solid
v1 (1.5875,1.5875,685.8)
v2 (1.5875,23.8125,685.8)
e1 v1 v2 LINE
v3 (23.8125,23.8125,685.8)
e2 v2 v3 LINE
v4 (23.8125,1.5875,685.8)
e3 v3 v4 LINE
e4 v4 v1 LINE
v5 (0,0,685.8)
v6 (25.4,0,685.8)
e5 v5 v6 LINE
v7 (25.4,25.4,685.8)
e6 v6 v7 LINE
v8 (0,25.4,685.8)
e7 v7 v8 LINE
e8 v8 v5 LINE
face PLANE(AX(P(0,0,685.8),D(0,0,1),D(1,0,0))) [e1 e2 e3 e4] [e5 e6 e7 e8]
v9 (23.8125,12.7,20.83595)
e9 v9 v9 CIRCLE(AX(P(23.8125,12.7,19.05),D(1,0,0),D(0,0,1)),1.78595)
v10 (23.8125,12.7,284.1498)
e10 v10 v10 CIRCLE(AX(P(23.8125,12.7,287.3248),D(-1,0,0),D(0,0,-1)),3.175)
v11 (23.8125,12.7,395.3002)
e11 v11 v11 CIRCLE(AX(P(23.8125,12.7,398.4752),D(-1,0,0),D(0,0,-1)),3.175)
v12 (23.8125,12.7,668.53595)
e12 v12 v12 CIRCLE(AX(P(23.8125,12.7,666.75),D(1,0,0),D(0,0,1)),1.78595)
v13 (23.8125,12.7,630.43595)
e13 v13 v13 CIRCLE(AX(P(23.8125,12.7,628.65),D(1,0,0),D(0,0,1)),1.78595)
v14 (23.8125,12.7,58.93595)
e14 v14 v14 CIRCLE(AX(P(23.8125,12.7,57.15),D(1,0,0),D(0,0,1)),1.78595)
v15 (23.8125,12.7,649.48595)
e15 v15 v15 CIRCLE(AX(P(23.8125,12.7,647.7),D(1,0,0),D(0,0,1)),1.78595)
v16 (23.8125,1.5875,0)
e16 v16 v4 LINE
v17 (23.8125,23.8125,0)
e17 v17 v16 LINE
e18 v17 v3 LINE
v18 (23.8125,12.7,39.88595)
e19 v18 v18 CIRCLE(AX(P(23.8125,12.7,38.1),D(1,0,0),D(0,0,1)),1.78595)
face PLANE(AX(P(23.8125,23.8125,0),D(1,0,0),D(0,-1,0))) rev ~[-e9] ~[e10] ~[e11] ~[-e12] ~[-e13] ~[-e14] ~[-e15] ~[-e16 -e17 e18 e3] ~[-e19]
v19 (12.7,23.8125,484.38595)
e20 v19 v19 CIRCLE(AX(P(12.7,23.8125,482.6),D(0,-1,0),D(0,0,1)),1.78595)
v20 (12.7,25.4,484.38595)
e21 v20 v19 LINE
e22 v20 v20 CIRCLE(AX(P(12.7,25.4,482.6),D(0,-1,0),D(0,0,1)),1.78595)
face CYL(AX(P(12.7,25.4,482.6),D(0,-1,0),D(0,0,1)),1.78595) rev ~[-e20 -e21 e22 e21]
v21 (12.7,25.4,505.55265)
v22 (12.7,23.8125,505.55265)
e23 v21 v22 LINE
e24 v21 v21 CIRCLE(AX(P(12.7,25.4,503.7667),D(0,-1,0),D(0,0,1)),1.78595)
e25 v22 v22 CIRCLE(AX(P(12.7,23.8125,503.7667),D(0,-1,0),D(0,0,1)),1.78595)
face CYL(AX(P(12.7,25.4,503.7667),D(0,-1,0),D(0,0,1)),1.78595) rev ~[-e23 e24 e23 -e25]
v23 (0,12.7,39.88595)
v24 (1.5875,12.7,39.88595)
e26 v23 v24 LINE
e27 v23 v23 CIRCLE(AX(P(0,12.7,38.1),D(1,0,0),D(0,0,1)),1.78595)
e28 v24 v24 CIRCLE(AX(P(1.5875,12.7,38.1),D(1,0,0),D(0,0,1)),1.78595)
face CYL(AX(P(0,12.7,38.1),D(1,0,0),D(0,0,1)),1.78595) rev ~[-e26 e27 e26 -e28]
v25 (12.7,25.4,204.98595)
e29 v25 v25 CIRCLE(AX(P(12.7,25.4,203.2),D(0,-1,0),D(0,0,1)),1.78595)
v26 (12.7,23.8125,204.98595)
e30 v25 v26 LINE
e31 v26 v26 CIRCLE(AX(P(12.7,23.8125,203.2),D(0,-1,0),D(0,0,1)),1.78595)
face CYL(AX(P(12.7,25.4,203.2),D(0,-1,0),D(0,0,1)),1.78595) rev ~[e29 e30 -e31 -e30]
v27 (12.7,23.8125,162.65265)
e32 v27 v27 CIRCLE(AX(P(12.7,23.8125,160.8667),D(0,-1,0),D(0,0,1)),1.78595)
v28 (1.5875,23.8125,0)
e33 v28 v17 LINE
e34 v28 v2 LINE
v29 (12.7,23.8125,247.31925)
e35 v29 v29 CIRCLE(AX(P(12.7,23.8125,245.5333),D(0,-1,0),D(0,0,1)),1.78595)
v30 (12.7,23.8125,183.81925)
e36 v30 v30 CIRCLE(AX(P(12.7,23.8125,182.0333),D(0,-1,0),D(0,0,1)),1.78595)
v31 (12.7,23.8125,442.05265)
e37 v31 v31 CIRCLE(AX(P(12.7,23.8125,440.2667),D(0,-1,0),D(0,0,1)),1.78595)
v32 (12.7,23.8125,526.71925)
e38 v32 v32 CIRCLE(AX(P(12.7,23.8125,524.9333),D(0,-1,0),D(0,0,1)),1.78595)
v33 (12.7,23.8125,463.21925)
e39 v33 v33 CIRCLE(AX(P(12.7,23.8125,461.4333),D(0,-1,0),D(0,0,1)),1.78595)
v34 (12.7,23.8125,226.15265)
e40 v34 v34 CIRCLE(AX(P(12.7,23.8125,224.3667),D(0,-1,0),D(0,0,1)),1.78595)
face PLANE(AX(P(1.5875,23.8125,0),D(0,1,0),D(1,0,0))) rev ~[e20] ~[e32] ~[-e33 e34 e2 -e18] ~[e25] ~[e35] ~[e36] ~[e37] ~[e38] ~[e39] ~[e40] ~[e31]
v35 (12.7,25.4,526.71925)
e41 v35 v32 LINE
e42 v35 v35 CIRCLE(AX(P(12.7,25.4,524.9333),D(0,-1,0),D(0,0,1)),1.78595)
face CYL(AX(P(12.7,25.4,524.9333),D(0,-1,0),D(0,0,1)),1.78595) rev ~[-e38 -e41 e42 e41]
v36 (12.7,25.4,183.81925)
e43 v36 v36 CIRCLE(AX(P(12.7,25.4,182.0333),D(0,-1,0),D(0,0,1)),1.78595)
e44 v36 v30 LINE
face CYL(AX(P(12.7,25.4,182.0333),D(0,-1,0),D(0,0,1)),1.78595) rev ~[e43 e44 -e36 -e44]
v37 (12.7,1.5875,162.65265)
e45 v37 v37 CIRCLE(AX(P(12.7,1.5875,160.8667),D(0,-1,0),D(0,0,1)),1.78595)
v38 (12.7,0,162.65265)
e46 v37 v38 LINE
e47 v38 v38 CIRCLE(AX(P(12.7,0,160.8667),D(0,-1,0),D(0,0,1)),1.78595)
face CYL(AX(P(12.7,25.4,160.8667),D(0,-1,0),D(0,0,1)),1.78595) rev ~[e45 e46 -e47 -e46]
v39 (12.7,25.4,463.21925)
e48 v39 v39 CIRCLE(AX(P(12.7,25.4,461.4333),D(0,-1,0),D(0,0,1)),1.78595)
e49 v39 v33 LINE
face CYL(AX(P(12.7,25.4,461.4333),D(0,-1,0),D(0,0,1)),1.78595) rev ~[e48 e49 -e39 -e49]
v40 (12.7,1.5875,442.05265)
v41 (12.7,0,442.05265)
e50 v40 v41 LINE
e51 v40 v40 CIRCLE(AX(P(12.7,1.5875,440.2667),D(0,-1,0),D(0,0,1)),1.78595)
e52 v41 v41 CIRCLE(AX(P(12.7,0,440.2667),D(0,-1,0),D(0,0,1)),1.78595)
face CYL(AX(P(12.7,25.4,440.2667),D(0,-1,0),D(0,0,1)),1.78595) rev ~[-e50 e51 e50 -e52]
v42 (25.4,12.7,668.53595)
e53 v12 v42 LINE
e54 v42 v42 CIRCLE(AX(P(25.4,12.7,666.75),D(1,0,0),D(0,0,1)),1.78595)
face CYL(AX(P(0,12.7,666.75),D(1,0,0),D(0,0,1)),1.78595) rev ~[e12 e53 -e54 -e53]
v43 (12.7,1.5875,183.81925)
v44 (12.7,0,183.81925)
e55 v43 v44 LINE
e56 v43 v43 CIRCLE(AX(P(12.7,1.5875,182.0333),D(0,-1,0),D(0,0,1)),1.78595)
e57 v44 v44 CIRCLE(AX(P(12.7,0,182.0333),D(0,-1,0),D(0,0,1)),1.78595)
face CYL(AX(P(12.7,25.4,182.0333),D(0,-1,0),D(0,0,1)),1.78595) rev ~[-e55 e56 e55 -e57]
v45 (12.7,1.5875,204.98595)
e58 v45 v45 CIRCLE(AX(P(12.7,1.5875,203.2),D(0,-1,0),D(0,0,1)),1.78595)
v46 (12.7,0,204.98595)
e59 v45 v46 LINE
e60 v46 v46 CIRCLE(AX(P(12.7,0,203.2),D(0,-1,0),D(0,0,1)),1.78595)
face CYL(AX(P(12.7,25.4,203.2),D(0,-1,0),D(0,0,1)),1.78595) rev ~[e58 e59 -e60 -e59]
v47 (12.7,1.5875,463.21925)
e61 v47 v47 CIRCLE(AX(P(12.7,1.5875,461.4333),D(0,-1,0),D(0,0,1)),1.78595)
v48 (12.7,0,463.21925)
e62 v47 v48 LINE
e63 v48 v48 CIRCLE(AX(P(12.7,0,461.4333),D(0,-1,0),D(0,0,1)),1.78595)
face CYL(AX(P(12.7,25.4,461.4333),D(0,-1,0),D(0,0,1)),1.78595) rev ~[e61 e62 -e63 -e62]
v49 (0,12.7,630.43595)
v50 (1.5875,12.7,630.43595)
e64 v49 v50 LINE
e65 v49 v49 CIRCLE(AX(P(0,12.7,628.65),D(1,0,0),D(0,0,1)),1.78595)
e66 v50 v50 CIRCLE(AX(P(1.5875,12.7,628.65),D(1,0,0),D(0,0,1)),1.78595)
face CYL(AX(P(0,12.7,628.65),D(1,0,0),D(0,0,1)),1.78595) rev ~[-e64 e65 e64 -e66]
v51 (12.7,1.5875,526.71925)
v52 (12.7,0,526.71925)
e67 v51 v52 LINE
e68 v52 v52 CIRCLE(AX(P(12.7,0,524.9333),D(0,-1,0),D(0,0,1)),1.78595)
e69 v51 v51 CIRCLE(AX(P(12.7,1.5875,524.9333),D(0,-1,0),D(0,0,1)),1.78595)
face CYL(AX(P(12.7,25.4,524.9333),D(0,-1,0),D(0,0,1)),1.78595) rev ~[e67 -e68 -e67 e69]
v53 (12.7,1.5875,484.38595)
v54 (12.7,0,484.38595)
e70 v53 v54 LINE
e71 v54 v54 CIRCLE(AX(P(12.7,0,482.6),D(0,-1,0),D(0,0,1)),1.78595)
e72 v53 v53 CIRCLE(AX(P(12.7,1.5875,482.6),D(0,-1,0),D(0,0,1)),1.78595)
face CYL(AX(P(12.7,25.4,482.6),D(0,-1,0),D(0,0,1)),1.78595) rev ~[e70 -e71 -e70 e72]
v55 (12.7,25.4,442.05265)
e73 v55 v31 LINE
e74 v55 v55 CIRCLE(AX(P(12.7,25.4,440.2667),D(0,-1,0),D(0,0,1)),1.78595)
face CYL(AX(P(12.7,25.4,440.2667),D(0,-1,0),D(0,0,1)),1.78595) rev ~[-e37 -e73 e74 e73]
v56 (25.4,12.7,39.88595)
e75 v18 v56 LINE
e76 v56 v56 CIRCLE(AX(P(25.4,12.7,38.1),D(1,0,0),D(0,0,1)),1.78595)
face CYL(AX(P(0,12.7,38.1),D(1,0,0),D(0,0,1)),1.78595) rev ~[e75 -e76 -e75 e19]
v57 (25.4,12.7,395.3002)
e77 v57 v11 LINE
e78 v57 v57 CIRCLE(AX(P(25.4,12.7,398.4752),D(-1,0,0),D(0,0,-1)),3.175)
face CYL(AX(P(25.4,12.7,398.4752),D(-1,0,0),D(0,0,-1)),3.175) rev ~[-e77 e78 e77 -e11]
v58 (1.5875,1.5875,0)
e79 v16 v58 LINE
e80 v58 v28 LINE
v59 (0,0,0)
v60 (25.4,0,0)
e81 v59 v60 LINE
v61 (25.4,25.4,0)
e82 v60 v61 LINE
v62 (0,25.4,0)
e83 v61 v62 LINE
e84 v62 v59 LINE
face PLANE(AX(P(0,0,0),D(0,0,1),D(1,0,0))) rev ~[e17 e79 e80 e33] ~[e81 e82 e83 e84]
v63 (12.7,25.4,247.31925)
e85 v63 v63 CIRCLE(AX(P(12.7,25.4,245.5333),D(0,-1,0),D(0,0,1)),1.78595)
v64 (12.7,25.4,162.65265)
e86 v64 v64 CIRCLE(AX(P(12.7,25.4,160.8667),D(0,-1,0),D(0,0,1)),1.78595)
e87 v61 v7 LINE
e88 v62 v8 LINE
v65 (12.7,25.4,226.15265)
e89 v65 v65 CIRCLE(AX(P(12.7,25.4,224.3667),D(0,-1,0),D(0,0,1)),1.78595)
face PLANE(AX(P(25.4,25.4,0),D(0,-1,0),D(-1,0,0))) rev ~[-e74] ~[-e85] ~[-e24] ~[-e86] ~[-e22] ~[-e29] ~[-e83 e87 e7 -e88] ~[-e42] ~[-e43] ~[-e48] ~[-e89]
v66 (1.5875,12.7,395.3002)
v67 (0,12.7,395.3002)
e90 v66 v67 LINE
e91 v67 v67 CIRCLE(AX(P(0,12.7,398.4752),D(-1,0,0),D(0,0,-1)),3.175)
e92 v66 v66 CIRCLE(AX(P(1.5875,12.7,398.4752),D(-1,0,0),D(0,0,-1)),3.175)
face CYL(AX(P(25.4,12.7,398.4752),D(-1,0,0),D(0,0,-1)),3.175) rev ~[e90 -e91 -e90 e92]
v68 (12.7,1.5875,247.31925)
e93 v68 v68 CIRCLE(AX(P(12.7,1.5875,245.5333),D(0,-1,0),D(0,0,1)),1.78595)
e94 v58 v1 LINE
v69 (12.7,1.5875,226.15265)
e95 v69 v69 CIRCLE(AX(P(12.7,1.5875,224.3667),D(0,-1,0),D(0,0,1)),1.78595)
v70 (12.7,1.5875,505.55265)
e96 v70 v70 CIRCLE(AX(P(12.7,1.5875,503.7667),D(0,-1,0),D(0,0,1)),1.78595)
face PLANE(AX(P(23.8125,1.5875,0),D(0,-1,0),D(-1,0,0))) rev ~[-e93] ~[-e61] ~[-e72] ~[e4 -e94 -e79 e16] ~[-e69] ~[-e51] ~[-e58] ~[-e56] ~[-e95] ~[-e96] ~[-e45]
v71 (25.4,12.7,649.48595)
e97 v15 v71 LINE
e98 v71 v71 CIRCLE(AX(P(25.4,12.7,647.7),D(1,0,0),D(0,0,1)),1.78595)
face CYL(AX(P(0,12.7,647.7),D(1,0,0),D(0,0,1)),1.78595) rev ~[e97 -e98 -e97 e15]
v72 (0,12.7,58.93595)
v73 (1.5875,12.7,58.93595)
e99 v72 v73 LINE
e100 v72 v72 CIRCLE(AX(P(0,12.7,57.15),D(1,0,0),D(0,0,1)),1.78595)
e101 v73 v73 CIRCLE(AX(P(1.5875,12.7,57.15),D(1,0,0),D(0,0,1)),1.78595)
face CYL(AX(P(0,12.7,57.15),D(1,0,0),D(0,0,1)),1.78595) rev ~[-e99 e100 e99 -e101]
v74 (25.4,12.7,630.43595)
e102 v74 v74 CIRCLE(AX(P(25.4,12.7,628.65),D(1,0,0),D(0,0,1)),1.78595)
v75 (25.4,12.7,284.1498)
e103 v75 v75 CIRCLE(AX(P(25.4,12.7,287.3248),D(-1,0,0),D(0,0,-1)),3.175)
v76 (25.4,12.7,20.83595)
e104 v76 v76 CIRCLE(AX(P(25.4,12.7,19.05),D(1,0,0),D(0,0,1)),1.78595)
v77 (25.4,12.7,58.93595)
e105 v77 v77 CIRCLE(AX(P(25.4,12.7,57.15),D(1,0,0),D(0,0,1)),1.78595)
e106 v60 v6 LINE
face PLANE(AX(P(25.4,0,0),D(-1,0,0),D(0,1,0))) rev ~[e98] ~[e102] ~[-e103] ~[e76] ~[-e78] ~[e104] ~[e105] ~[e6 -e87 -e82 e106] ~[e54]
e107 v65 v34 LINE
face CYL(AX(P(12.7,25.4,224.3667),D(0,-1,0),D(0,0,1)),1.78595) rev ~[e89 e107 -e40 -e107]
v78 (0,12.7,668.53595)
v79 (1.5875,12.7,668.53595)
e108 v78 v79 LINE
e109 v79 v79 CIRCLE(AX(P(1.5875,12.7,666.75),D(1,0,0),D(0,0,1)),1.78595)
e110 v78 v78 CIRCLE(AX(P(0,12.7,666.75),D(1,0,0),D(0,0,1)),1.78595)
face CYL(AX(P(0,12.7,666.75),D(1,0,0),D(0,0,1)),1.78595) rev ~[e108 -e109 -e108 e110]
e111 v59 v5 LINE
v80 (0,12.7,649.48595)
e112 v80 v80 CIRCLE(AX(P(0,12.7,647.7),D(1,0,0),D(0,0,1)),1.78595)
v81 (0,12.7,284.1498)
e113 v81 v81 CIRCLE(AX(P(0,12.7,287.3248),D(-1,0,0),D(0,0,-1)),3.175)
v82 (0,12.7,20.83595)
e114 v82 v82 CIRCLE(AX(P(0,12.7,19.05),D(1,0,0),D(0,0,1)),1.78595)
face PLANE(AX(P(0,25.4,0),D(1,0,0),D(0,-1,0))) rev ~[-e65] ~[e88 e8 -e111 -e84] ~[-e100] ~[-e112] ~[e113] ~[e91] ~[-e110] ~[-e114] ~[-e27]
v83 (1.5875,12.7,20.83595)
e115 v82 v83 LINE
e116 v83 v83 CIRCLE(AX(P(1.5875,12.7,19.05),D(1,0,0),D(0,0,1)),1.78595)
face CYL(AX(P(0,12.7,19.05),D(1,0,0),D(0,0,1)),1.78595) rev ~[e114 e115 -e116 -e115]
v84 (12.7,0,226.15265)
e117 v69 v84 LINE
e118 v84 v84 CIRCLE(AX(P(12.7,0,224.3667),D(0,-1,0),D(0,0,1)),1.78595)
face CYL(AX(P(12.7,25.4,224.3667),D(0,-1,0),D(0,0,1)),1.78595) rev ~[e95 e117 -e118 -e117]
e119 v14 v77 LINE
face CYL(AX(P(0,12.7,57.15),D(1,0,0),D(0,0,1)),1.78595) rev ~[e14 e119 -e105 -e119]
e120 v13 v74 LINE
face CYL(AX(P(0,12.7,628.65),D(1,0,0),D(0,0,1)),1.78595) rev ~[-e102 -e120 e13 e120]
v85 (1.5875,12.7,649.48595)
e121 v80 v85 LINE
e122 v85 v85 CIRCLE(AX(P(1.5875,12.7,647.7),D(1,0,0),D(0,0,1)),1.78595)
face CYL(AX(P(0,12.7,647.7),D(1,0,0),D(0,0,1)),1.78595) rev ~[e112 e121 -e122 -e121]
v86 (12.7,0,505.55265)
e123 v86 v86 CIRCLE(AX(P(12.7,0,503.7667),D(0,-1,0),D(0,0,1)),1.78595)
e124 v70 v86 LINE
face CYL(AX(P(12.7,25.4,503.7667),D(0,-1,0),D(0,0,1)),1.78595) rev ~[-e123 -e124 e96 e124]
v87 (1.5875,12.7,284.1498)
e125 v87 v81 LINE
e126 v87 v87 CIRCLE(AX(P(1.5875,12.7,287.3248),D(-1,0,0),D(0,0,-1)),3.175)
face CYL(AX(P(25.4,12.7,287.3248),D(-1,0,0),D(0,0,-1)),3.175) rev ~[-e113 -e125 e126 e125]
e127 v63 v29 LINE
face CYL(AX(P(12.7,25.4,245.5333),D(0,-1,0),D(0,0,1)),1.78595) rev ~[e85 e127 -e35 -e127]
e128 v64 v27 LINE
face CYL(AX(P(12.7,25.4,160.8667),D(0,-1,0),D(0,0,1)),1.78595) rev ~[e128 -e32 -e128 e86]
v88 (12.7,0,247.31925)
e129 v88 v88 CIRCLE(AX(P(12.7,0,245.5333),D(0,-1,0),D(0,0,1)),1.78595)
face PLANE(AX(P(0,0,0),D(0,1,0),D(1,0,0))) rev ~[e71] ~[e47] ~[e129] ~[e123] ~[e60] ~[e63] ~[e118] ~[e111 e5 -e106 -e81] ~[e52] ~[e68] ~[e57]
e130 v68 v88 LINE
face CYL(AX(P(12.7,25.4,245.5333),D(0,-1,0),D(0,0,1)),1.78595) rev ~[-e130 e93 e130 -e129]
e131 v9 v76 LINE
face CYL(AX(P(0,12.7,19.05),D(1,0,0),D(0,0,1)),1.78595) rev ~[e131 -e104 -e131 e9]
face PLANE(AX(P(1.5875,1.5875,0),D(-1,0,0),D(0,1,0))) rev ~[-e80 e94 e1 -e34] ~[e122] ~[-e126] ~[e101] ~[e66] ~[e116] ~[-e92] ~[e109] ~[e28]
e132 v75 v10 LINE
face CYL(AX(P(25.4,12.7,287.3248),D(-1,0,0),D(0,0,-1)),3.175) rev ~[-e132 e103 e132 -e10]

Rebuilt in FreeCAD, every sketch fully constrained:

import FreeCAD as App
import Part
import Sketcher
from FreeCAD import Vector
Q = App.Units.Quantity


def add_polygon(sketch, points):
    """Adds a closed chain of lines whose ends are joined by coincident constraints."""
    first, n = sketch.GeometryCount, len(points)
    for a, b in zip(points, points[1:] + points[:1]):
        sketch.addGeometry(Part.LineSegment(App.Vector(*a, 0), App.Vector(*b, 0)), False)
    for i in range(n):
        sketch.addConstraint(Sketcher.Constraint("Coincident", first + i, 2, first + (i + 1) % n, 1))

doc = App.newDocument("Part")
body = doc.addObject("PartDesign::Body", "Body")

# Sketch on XY plane
sketch1 = body.newObject("Sketcher::SketchObject", "Sketch")
sketch1.AttachmentSupport = (doc.getObject("XY_Plane"), [""])
sketch1.MapMode = "FlatFace"
add_polygon(sketch1, [(0, 25), (0, 0), (25, 0), (25, 25)])  # lines 0-3
add_polygon(sketch1, [(2, 2), (2, 24), (24, 24), (24, 2)])  # lines 4-7
sketch1.addConstraint(Sketcher.Constraint("Vertical", 0))
sketch1.addConstraint(Sketcher.Constraint("Horizontal", 1))
sketch1.addConstraint(Sketcher.Constraint("Vertical", 2))
sketch1.addConstraint(Sketcher.Constraint("Horizontal", 3))
sketch1.addConstraint(Sketcher.Constraint("Vertical", 4))
sketch1.addConstraint(Sketcher.Constraint("Horizontal", 5))
sketch1.addConstraint(Sketcher.Constraint("Vertical", 6))
sketch1.addConstraint(Sketcher.Constraint("Horizontal", 7))
sketch1.addConstraint(Sketcher.Constraint("Coincident", 0, 2, -1, 1))
sketch1.addConstraint(Sketcher.Constraint("Equal", 3, 0))
sketch1.addConstraint(Sketcher.Constraint("Equal", 7, 4))
sketch1.addConstraint(Sketcher.Constraint("DistanceX", 1, 1, 1, 2, Q("1 in")))
sketch1.addConstraint(Sketcher.Constraint("DistanceX", -1, 1, 4, 2, Q("0.0625 in")))
sketch1.addConstraint(Sketcher.Constraint("DistanceY", -1, 1, 6, 2, Q("0.0625 in")))
sketch1.addConstraint(Sketcher.Constraint("DistanceY", 4, 2, 3, 2, Q("0.0625 in")))
pad1 = body.newObject("PartDesign::Pad", "Pad")
pad1.Profile = sketch1
pad1.Length = Q("27 in")

# Sketch on YZ plane
sketch2 = body.newObject("Sketcher::SketchObject", "Sketch001")
sketch2.AttachmentSupport = (doc.getObject("YZ_Plane"), [""])
sketch2.MapMode = "FlatFace"
sketch2.AttachmentOffset = App.Placement(Vector(0, 0, 1 * 25.4), App.Rotation())
sketch2.addGeometry(Part.Circle(Vector(12.7, 398.5, 0), Vector(0, 0, 1), 3.2), False)
sketch2.addGeometry(Part.Circle(Vector(12.7, 287.3, 0), Vector(0, 0, 1), 3.2), False)
sketch2.addConstraint(Sketcher.Constraint("Equal", 0, 1))
sketch2.addConstraint(Sketcher.Constraint("Vertical", 0, 3, 1, 3))
sketch2.addConstraint(Sketcher.Constraint("Diameter", 0, Q("0.25 in")))
sketch2.addConstraint(Sketcher.Constraint("DistanceX", -1, 1, 0, 3, Q("0.5 in")))
sketch2.addConstraint(Sketcher.Constraint("DistanceY", -1, 1, 0, 3, Q("15.688 in")))
sketch2.addConstraint(Sketcher.Constraint("DistanceY", -1, 1, 1, 3, Q("11.312 in")))
doc.recompute()
hole = body.newObject("PartDesign::Hole", "Hole")
hole.Profile = sketch2
hole.ThreadType = "None"
hole.Diameter = Q("0.25 in")
hole.DepthType = "Dimension"
hole.Depth = Q("1 in")
hole.DrillPoint = "Angled"
hole.DrillPointAngle = 118

# Sketch on YZ plane
sketch3 = body.newObject("Sketcher::SketchObject", "Sketch002")
sketch3.AttachmentSupport = (doc.getObject("YZ_Plane"), [""])
sketch3.MapMode = "FlatFace"
sketch3.addGeometry(Part.Circle(Vector(12.7, 19.1, 0), Vector(0, 0, 1), 1.8), False)
sketch3.addGeometry(Part.Circle(Vector(12.7, 38.1, 0), Vector(0, 0, 1), 1.8), False)
sketch3.addGeometry(Part.Circle(Vector(12.7, 57.1, 0), Vector(0, 0, 1), 1.8), False)
sketch3.addGeometry(Part.Circle(Vector(12.7, 628.6, 0), Vector(0, 0, 1), 1.8), False)
sketch3.addGeometry(Part.Circle(Vector(12.7, 647.7, 0), Vector(0, 0, 1), 1.8), False)
sketch3.addGeometry(Part.Circle(Vector(12.7, 666.8, 0), Vector(0, 0, 1), 1.8), False)
sketch3.addConstraint(Sketcher.Constraint("Equal", 0, 1))
sketch3.addConstraint(Sketcher.Constraint("Equal", 1, 2))
sketch3.addConstraint(Sketcher.Constraint("Equal", 2, 3))
sketch3.addConstraint(Sketcher.Constraint("Equal", 3, 4))
sketch3.addConstraint(Sketcher.Constraint("Equal", 4, 5))
sketch3.addConstraint(Sketcher.Constraint("Vertical", 0, 3, 1, 3))
sketch3.addConstraint(Sketcher.Constraint("Vertical", 1, 3, 2, 3))
sketch3.addConstraint(Sketcher.Constraint("Vertical", 2, 3, 3, 3))
sketch3.addConstraint(Sketcher.Constraint("Vertical", 3, 3, 4, 3))
sketch3.addConstraint(Sketcher.Constraint("Vertical", 4, 3, 5, 3))
sketch3.addConstraint(Sketcher.Constraint("Diameter", 0, Q("0.1406299 in")))
sketch3.addConstraint(Sketcher.Constraint("DistanceY", 0, 3, 3, 3, Q("24 in")))
sketch3.addConstraint(Sketcher.Constraint("DistanceY", 1, 3, 4, 3, Q("24 in")))
sketch3.addConstraint(Sketcher.Constraint("DistanceY", 2, 3, 5, 3, Q("24 in")))
sketch3.addConstraint(Sketcher.Constraint("DistanceX", -1, 1, 0, 3, Q("0.5 in")))
sketch3.addConstraint(Sketcher.Constraint("DistanceY", -1, 1, 1, 3, Q("1.5 in")))
sketch3.addConstraint(Sketcher.Constraint("DistanceY", 0, 3, 2, 3, Q("1.5 in")))
sketch3.addConstraint(Sketcher.Constraint("DistanceY", -1, 1, 0, 3, Q("0.75 in")))
doc.recompute()
hole2 = body.newObject("PartDesign::Hole", "Hole001")
hole2.Profile = sketch3
hole2.ThreadType = "None"
hole2.Diameter = Q("0.140626 in")
hole2.DepthType = "Dimension"
hole2.Depth = Q("1 in")
hole2.DrillPoint = "Angled"
hole2.DrillPointAngle = 118
hole2.Reversed = True

# Sketch on XZ plane
sketch4 = body.newObject("Sketcher::SketchObject", "Sketch003")
sketch4.AttachmentSupport = (doc.getObject("XZ_Plane"), [""])
sketch4.MapMode = "FlatFace"
sketch4.AttachmentOffset = App.Placement(Vector(0, 0, -1 * 25.4), App.Rotation())
sketch4.addGeometry(Part.Circle(Vector(12.7, 160.9, 0), Vector(0, 0, 1), 1.8), False)
sketch4.addGeometry(Part.Circle(Vector(12.7, 182, 0), Vector(0, 0, 1), 1.8), False)
sketch4.addGeometry(Part.Circle(Vector(12.7, 203.2, 0), Vector(0, 0, 1), 1.8), False)
sketch4.addGeometry(Part.Circle(Vector(12.7, 224.4, 0), Vector(0, 0, 1), 1.8), False)
sketch4.addGeometry(Part.Circle(Vector(12.7, 245.5, 0), Vector(0, 0, 1), 1.8), False)
sketch4.addGeometry(Part.Circle(Vector(12.7, 440.3, 0), Vector(0, 0, 1), 1.8), False)
sketch4.addGeometry(Part.Circle(Vector(12.7, 461.4, 0), Vector(0, 0, 1), 1.8), False)
sketch4.addGeometry(Part.Circle(Vector(12.7, 482.6, 0), Vector(0, 0, 1), 1.8), False)
sketch4.addGeometry(Part.Circle(Vector(12.7, 503.8, 0), Vector(0, 0, 1), 1.8), False)
sketch4.addGeometry(Part.Circle(Vector(12.7, 524.9, 0), Vector(0, 0, 1), 1.8), False)
sketch4.addConstraint(Sketcher.Constraint("Equal", 0, 1))
sketch4.addConstraint(Sketcher.Constraint("Equal", 1, 2))
sketch4.addConstraint(Sketcher.Constraint("Equal", 2, 3))
sketch4.addConstraint(Sketcher.Constraint("Equal", 3, 4))
sketch4.addConstraint(Sketcher.Constraint("Equal", 4, 5))
sketch4.addConstraint(Sketcher.Constraint("Equal", 5, 6))
sketch4.addConstraint(Sketcher.Constraint("Equal", 6, 7))
sketch4.addConstraint(Sketcher.Constraint("Equal", 7, 8))
sketch4.addConstraint(Sketcher.Constraint("Equal", 8, 9))
sketch4.addConstraint(Sketcher.Constraint("Vertical", 0, 3, 1, 3))
sketch4.addConstraint(Sketcher.Constraint("Vertical", 1, 3, 2, 3))
sketch4.addConstraint(Sketcher.Constraint("Vertical", 2, 3, 3, 3))
sketch4.addConstraint(Sketcher.Constraint("Vertical", 3, 3, 4, 3))
sketch4.addConstraint(Sketcher.Constraint("Vertical", 4, 3, 5, 3))
sketch4.addConstraint(Sketcher.Constraint("Vertical", 5, 3, 6, 3))
sketch4.addConstraint(Sketcher.Constraint("Vertical", 6, 3, 7, 3))
sketch4.addConstraint(Sketcher.Constraint("Vertical", 7, 3, 8, 3))
sketch4.addConstraint(Sketcher.Constraint("Vertical", 8, 3, 9, 3))
sketch4.addConstraint(Sketcher.Constraint("Diameter", 0, Q("0.1406299 in")))
sketch4.addConstraint(Sketcher.Constraint("DistanceY", -1, 1, 2, 3, Q("8 in")))
sketch4.addConstraint(Sketcher.Constraint("DistanceY", -1, 1, 7, 3, Q("19 in")))
sketch4.addConstraint(Sketcher.Constraint("DistanceY", 0, 3, 5, 3, Q("11 in")))
sketch4.addConstraint(Sketcher.Constraint("DistanceY", 1, 3, 6, 3, Q("11 in")))
sketch4.addConstraint(Sketcher.Constraint("DistanceY", 3, 3, 8, 3, Q("11 in")))
sketch4.addConstraint(Sketcher.Constraint("DistanceY", 4, 3, 9, 3, Q("11 in")))
sketch4.addConstraint(Sketcher.Constraint("DistanceX", -1, 1, 0, 3, Q("0.5 in")))
sketch4.addConstraint(Sketcher.Constraint("DistanceY", 0, 3, 3, 3, Q("2.5 in")))
sketch4.addConstraint(Sketcher.Constraint("DistanceY", 1, 3, 4, 3, Q("2.5 in")))
sketch4.addConstraint(Sketcher.Constraint("DistanceY", -1, 1, 0, 3, Q("160.8667 mm")))
sketch4.addConstraint(Sketcher.Constraint("DistanceY", -1, 1, 1, 3, Q("182.0333 mm")))
doc.recompute()
hole3 = body.newObject("PartDesign::Hole", "Hole002")
hole3.Profile = sketch4
hole3.ThreadType = "None"
hole3.Diameter = Q("0.140626 in")
hole3.DepthType = "Dimension"
hole3.Depth = Q("1 in")
hole3.DrillPoint = "Angled"
hole3.DrillPointAngle = 118
hole3.Reversed = True

doc.recompute()
